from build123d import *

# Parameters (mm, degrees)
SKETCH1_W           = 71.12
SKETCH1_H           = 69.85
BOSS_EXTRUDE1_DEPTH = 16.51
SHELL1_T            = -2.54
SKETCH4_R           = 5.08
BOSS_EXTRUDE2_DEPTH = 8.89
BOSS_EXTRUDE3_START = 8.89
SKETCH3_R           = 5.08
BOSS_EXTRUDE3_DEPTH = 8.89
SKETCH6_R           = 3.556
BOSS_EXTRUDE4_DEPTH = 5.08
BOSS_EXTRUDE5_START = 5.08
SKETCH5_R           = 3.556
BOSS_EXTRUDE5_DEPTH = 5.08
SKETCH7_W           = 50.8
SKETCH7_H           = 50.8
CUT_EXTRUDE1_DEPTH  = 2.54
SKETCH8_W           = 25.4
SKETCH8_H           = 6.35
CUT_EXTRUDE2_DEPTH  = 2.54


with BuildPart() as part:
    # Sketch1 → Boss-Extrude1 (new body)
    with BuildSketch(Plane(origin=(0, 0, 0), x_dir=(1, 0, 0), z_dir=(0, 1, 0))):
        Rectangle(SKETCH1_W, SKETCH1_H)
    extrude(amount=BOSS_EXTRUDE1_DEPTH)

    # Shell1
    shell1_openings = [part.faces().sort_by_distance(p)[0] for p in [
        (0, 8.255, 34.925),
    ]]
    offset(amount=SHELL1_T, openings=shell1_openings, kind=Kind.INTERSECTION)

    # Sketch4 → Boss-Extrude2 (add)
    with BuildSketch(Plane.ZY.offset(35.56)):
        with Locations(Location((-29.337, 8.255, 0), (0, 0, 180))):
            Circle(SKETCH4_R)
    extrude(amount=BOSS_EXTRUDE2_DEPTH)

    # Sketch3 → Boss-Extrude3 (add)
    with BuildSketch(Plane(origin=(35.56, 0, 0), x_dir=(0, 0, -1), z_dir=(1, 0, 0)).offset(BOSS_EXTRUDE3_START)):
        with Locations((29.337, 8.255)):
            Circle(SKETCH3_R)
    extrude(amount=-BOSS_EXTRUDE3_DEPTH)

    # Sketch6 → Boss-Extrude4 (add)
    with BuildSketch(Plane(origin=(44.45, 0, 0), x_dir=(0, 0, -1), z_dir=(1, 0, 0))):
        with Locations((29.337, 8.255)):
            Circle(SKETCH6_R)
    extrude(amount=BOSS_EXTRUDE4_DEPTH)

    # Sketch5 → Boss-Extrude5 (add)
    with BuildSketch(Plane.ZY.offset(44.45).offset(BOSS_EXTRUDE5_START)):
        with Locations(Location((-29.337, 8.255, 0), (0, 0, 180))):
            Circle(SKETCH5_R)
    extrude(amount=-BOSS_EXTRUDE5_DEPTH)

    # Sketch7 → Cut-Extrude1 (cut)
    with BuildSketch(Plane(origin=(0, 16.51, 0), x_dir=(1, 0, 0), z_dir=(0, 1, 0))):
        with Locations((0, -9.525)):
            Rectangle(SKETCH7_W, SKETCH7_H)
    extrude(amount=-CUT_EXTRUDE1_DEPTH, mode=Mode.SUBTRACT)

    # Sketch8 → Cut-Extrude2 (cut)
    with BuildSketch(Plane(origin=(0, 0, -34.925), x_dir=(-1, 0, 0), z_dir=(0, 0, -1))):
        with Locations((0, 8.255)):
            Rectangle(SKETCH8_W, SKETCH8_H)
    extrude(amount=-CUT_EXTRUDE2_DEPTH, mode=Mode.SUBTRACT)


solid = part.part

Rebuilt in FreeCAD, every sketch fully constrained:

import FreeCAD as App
import Part
import Sketcher

V = App.Vector
Q = App.Units.Quantity


def faces_at(feature, points):
    """Names of the faces that lie closest to the given points."""
    faces = feature.Shape.Faces
    near = lambda p: min(range(len(faces)), key=lambda i: faces[i].distToShape(Part.Vertex(*p))[0])
    return sorted({f"Face{near(p) + 1}" for p in points})


def add_polygon(sketch, points):
    """Adds a closed chain of lines whose ends are joined by coincident constraints."""
    first, n = sketch.GeometryCount, len(points)
    for a, b in zip(points, points[1:] + points[:1]):
        sketch.addGeometry(Part.LineSegment(App.Vector(*a, 0), App.Vector(*b, 0)), False)
    for i in range(n):
        sketch.addConstraint(Sketcher.Constraint("Coincident", first + i, 2, first + (i + 1) % n, 1))

doc = App.newDocument("Part")
body = doc.addObject("PartDesign::Body", "Body")

sketch1 = body.newObject("Sketcher::SketchObject", "Sketch")
sketch1.AttachmentSupport = (doc.getObject("XZ_Plane"), [""])
sketch1.MapMode = "FlatFace"
add_polygon(sketch1, [(-35.56, -34.925), (-35.56, 34.925), (35.56, 34.925), (35.56, -34.925)])
sketch1.addConstraint([
    Sketcher.Constraint("Vertical", 0),
    Sketcher.Constraint("Horizontal", 1),
    Sketcher.Constraint("Vertical", 2),
    Sketcher.Constraint("Horizontal", 3),
    Sketcher.Constraint("Symmetric", 0, 2, 2, 2, -1, 1),
    Sketcher.Constraint("DistanceX", 1, 1, 1, 2, Q("2.8 in")),
    Sketcher.Constraint("DistanceY", 0, 1, 0, 2, Q("2.75 in")),
])
pad1 = body.newObject("PartDesign::Pad", "Pad")
pad1.Profile = sketch1
pad1.Length = Q("0.65 in")
pad1.Reversed = True
doc.recompute()

thickness = body.newObject("PartDesign::Thickness", "Thickness")
thickness.Base = (pad1, faces_at(pad1, [(0, 8.255, 34.925)]))
thickness.Value = Q("0.1 in")
thickness.Reversed = True
thickness.Join = "Intersection"

sketch2 = body.newObject("Sketcher::SketchObject", "Sketch001")
sketch2.AttachmentSupport = (doc.getObject("YZ_Plane"), [""])
sketch2.MapMode = "FlatFace"
sketch2.AttachmentOffset = App.Placement(V(0, 0, -1.4 * 25.4), App.Rotation())
sketch2.addGeometry(Part.Circle(V(8.255, -29.337, 0), V(0, 0, 1), 5.08), False)
sketch2.addConstraint([
    Sketcher.Constraint("Diameter", 0, Q("0.4 in")),
    Sketcher.Constraint("DistanceX", -1, 1, 0, 3, Q("0.325 in")),
    Sketcher.Constraint("DistanceY", 0, 3, -1, 1, Q("1.155 in")),
])
pad2 = body.newObject("PartDesign::Pad", "Pad001")
pad2.Profile = sketch2
pad2.Length = Q("0.35 in")
pad2.Reversed = True

sketch3 = body.newObject("Sketcher::SketchObject", "Sketch002")
sketch3.AttachmentSupport = (doc.getObject("YZ_Plane"), [""])
sketch3.MapMode = "FlatFace"
sketch3.AttachmentOffset = App.Placement(V(0, 0, 1.75 * 25.4), App.Rotation())
sketch3.addGeometry(Part.Circle(V(8.255, -29.337, 0), V(0, 0, 1), 5.08), False)
sketch3.addConstraint([
    Sketcher.Constraint("Diameter", 0, Q("0.4 in")),
    Sketcher.Constraint("DistanceX", -1, 1, 0, 3, Q("0.325 in")),
    Sketcher.Constraint("DistanceY", 0, 3, -1, 1, Q("1.155 in")),
])
pad3 = body.newObject("PartDesign::Pad", "Pad002")
pad3.Profile = sketch3
pad3.Length = Q("0.35 in")
pad3.Reversed = True

sketch4 = body.newObject("Sketcher::SketchObject", "Sketch003")
sketch4.AttachmentSupport = (doc.getObject("YZ_Plane"), [""])
sketch4.MapMode = "FlatFace"
sketch4.AttachmentOffset = App.Placement(V(0, 0, 1.75 * 25.4), App.Rotation())
sketch4.addGeometry(Part.Circle(V(8.255, -29.337, 0), V(0, 0, 1), 3.556), False)
sketch4.addConstraint([
    Sketcher.Constraint("Diameter", 0, Q("0.28 in")),
    Sketcher.Constraint("DistanceX", -1, 1, 0, 3, Q("0.325 in")),
    Sketcher.Constraint("DistanceY", 0, 3, -1, 1, Q("1.155 in")),
])
pad4 = body.newObject("PartDesign::Pad", "Pad003")
pad4.Profile = sketch4
pad4.Length = Q("0.2 in")

sketch5 = body.newObject("Sketcher::SketchObject", "Sketch004")
sketch5.AttachmentSupport = (doc.getObject("YZ_Plane"), [""])
sketch5.MapMode = "FlatFace"
sketch5.AttachmentOffset = App.Placement(V(0, 0, -1.95 * 25.4), App.Rotation())
sketch5.addGeometry(Part.Circle(V(8.255, -29.337, 0), V(0, 0, 1), 3.556), False)
sketch5.addConstraint([
    Sketcher.Constraint("Diameter", 0, Q("0.28 in")),
    Sketcher.Constraint("DistanceX", -1, 1, 0, 3, Q("0.325 in")),
    Sketcher.Constraint("DistanceY", 0, 3, -1, 1, Q("1.155 in")),
])
pad5 = body.newObject("PartDesign::Pad", "Pad004")
pad5.Profile = sketch5
pad5.Length = Q("0.2 in")

sketch6 = body.newObject("Sketcher::SketchObject", "Sketch005")
sketch6.AttachmentSupport = (doc.getObject("XZ_Plane"), [""])
sketch6.MapMode = "FlatFace"
sketch6.AttachmentOffset = App.Placement(V(0, 0, -0.65 * 25.4), App.Rotation())
add_polygon(sketch6, [(-25.4, -15.875), (-25.4, 34.925), (25.4, 34.925), (25.4, -15.875)])
sketch6.addConstraint([
    Sketcher.Constraint("Vertical", 0),
    Sketcher.Constraint("Horizontal", 1),
    Sketcher.Constraint("Vertical", 2),
    Sketcher.Constraint("Horizontal", 3),
    Sketcher.Constraint("Equal", 3, 0),
    Sketcher.Constraint("DistanceX", 1, 1, 1, 2, Q("2 in")),
    Sketcher.Constraint("DistanceX", 0, 2, -1, 1, Q("1 in")),
    Sketcher.Constraint("DistanceY", -1, 1, 0, 2, Q("1.375 in")),
])
pocket1 = body.newObject("PartDesign::Pocket", "Pocket")
pocket1.Profile = sketch6
pocket1.Length = Q("0.1 in")
pocket1.Reversed = True

sketch7 = body.newObject("Sketcher::SketchObject", "Sketch006")
sketch7.AttachmentSupport = (doc.getObject("XY_Plane"), [""])
sketch7.MapMode = "FlatFace"
sketch7.AttachmentOffset = App.Placement(V(0, 0, -1.375 * 25.4), App.Rotation())
add_polygon(sketch7, [(12.7, 11.43), (12.7, 5.08), (-12.7, 5.08), (-12.7, 11.43)])
sketch7.addConstraint([
    Sketcher.Constraint("Vertical", 0),
    Sketcher.Constraint("Horizontal", 1),
    Sketcher.Constraint("Vertical", 2),
    Sketcher.Constraint("Horizontal", 3),
    Sketcher.Constraint("DistanceX", 1, 2, 1, 1, Q("1 in")),
    Sketcher.Constraint("DistanceY", 0, 2, 0, 1, Q("0.25 in")),
    Sketcher.Constraint("DistanceX", -1, 1, 0, 2, Q("0.5 in")),
    Sketcher.Constraint("DistanceY", -1, 1, 0, 2, Q("0.2 in")),
])
pocket2 = body.newObject("PartDesign::Pocket", "Pocket001")
pocket2.Profile = sketch7
pocket2.Length = Q("0.1 in")
pocket2.Reversed = True

doc.recompute()
